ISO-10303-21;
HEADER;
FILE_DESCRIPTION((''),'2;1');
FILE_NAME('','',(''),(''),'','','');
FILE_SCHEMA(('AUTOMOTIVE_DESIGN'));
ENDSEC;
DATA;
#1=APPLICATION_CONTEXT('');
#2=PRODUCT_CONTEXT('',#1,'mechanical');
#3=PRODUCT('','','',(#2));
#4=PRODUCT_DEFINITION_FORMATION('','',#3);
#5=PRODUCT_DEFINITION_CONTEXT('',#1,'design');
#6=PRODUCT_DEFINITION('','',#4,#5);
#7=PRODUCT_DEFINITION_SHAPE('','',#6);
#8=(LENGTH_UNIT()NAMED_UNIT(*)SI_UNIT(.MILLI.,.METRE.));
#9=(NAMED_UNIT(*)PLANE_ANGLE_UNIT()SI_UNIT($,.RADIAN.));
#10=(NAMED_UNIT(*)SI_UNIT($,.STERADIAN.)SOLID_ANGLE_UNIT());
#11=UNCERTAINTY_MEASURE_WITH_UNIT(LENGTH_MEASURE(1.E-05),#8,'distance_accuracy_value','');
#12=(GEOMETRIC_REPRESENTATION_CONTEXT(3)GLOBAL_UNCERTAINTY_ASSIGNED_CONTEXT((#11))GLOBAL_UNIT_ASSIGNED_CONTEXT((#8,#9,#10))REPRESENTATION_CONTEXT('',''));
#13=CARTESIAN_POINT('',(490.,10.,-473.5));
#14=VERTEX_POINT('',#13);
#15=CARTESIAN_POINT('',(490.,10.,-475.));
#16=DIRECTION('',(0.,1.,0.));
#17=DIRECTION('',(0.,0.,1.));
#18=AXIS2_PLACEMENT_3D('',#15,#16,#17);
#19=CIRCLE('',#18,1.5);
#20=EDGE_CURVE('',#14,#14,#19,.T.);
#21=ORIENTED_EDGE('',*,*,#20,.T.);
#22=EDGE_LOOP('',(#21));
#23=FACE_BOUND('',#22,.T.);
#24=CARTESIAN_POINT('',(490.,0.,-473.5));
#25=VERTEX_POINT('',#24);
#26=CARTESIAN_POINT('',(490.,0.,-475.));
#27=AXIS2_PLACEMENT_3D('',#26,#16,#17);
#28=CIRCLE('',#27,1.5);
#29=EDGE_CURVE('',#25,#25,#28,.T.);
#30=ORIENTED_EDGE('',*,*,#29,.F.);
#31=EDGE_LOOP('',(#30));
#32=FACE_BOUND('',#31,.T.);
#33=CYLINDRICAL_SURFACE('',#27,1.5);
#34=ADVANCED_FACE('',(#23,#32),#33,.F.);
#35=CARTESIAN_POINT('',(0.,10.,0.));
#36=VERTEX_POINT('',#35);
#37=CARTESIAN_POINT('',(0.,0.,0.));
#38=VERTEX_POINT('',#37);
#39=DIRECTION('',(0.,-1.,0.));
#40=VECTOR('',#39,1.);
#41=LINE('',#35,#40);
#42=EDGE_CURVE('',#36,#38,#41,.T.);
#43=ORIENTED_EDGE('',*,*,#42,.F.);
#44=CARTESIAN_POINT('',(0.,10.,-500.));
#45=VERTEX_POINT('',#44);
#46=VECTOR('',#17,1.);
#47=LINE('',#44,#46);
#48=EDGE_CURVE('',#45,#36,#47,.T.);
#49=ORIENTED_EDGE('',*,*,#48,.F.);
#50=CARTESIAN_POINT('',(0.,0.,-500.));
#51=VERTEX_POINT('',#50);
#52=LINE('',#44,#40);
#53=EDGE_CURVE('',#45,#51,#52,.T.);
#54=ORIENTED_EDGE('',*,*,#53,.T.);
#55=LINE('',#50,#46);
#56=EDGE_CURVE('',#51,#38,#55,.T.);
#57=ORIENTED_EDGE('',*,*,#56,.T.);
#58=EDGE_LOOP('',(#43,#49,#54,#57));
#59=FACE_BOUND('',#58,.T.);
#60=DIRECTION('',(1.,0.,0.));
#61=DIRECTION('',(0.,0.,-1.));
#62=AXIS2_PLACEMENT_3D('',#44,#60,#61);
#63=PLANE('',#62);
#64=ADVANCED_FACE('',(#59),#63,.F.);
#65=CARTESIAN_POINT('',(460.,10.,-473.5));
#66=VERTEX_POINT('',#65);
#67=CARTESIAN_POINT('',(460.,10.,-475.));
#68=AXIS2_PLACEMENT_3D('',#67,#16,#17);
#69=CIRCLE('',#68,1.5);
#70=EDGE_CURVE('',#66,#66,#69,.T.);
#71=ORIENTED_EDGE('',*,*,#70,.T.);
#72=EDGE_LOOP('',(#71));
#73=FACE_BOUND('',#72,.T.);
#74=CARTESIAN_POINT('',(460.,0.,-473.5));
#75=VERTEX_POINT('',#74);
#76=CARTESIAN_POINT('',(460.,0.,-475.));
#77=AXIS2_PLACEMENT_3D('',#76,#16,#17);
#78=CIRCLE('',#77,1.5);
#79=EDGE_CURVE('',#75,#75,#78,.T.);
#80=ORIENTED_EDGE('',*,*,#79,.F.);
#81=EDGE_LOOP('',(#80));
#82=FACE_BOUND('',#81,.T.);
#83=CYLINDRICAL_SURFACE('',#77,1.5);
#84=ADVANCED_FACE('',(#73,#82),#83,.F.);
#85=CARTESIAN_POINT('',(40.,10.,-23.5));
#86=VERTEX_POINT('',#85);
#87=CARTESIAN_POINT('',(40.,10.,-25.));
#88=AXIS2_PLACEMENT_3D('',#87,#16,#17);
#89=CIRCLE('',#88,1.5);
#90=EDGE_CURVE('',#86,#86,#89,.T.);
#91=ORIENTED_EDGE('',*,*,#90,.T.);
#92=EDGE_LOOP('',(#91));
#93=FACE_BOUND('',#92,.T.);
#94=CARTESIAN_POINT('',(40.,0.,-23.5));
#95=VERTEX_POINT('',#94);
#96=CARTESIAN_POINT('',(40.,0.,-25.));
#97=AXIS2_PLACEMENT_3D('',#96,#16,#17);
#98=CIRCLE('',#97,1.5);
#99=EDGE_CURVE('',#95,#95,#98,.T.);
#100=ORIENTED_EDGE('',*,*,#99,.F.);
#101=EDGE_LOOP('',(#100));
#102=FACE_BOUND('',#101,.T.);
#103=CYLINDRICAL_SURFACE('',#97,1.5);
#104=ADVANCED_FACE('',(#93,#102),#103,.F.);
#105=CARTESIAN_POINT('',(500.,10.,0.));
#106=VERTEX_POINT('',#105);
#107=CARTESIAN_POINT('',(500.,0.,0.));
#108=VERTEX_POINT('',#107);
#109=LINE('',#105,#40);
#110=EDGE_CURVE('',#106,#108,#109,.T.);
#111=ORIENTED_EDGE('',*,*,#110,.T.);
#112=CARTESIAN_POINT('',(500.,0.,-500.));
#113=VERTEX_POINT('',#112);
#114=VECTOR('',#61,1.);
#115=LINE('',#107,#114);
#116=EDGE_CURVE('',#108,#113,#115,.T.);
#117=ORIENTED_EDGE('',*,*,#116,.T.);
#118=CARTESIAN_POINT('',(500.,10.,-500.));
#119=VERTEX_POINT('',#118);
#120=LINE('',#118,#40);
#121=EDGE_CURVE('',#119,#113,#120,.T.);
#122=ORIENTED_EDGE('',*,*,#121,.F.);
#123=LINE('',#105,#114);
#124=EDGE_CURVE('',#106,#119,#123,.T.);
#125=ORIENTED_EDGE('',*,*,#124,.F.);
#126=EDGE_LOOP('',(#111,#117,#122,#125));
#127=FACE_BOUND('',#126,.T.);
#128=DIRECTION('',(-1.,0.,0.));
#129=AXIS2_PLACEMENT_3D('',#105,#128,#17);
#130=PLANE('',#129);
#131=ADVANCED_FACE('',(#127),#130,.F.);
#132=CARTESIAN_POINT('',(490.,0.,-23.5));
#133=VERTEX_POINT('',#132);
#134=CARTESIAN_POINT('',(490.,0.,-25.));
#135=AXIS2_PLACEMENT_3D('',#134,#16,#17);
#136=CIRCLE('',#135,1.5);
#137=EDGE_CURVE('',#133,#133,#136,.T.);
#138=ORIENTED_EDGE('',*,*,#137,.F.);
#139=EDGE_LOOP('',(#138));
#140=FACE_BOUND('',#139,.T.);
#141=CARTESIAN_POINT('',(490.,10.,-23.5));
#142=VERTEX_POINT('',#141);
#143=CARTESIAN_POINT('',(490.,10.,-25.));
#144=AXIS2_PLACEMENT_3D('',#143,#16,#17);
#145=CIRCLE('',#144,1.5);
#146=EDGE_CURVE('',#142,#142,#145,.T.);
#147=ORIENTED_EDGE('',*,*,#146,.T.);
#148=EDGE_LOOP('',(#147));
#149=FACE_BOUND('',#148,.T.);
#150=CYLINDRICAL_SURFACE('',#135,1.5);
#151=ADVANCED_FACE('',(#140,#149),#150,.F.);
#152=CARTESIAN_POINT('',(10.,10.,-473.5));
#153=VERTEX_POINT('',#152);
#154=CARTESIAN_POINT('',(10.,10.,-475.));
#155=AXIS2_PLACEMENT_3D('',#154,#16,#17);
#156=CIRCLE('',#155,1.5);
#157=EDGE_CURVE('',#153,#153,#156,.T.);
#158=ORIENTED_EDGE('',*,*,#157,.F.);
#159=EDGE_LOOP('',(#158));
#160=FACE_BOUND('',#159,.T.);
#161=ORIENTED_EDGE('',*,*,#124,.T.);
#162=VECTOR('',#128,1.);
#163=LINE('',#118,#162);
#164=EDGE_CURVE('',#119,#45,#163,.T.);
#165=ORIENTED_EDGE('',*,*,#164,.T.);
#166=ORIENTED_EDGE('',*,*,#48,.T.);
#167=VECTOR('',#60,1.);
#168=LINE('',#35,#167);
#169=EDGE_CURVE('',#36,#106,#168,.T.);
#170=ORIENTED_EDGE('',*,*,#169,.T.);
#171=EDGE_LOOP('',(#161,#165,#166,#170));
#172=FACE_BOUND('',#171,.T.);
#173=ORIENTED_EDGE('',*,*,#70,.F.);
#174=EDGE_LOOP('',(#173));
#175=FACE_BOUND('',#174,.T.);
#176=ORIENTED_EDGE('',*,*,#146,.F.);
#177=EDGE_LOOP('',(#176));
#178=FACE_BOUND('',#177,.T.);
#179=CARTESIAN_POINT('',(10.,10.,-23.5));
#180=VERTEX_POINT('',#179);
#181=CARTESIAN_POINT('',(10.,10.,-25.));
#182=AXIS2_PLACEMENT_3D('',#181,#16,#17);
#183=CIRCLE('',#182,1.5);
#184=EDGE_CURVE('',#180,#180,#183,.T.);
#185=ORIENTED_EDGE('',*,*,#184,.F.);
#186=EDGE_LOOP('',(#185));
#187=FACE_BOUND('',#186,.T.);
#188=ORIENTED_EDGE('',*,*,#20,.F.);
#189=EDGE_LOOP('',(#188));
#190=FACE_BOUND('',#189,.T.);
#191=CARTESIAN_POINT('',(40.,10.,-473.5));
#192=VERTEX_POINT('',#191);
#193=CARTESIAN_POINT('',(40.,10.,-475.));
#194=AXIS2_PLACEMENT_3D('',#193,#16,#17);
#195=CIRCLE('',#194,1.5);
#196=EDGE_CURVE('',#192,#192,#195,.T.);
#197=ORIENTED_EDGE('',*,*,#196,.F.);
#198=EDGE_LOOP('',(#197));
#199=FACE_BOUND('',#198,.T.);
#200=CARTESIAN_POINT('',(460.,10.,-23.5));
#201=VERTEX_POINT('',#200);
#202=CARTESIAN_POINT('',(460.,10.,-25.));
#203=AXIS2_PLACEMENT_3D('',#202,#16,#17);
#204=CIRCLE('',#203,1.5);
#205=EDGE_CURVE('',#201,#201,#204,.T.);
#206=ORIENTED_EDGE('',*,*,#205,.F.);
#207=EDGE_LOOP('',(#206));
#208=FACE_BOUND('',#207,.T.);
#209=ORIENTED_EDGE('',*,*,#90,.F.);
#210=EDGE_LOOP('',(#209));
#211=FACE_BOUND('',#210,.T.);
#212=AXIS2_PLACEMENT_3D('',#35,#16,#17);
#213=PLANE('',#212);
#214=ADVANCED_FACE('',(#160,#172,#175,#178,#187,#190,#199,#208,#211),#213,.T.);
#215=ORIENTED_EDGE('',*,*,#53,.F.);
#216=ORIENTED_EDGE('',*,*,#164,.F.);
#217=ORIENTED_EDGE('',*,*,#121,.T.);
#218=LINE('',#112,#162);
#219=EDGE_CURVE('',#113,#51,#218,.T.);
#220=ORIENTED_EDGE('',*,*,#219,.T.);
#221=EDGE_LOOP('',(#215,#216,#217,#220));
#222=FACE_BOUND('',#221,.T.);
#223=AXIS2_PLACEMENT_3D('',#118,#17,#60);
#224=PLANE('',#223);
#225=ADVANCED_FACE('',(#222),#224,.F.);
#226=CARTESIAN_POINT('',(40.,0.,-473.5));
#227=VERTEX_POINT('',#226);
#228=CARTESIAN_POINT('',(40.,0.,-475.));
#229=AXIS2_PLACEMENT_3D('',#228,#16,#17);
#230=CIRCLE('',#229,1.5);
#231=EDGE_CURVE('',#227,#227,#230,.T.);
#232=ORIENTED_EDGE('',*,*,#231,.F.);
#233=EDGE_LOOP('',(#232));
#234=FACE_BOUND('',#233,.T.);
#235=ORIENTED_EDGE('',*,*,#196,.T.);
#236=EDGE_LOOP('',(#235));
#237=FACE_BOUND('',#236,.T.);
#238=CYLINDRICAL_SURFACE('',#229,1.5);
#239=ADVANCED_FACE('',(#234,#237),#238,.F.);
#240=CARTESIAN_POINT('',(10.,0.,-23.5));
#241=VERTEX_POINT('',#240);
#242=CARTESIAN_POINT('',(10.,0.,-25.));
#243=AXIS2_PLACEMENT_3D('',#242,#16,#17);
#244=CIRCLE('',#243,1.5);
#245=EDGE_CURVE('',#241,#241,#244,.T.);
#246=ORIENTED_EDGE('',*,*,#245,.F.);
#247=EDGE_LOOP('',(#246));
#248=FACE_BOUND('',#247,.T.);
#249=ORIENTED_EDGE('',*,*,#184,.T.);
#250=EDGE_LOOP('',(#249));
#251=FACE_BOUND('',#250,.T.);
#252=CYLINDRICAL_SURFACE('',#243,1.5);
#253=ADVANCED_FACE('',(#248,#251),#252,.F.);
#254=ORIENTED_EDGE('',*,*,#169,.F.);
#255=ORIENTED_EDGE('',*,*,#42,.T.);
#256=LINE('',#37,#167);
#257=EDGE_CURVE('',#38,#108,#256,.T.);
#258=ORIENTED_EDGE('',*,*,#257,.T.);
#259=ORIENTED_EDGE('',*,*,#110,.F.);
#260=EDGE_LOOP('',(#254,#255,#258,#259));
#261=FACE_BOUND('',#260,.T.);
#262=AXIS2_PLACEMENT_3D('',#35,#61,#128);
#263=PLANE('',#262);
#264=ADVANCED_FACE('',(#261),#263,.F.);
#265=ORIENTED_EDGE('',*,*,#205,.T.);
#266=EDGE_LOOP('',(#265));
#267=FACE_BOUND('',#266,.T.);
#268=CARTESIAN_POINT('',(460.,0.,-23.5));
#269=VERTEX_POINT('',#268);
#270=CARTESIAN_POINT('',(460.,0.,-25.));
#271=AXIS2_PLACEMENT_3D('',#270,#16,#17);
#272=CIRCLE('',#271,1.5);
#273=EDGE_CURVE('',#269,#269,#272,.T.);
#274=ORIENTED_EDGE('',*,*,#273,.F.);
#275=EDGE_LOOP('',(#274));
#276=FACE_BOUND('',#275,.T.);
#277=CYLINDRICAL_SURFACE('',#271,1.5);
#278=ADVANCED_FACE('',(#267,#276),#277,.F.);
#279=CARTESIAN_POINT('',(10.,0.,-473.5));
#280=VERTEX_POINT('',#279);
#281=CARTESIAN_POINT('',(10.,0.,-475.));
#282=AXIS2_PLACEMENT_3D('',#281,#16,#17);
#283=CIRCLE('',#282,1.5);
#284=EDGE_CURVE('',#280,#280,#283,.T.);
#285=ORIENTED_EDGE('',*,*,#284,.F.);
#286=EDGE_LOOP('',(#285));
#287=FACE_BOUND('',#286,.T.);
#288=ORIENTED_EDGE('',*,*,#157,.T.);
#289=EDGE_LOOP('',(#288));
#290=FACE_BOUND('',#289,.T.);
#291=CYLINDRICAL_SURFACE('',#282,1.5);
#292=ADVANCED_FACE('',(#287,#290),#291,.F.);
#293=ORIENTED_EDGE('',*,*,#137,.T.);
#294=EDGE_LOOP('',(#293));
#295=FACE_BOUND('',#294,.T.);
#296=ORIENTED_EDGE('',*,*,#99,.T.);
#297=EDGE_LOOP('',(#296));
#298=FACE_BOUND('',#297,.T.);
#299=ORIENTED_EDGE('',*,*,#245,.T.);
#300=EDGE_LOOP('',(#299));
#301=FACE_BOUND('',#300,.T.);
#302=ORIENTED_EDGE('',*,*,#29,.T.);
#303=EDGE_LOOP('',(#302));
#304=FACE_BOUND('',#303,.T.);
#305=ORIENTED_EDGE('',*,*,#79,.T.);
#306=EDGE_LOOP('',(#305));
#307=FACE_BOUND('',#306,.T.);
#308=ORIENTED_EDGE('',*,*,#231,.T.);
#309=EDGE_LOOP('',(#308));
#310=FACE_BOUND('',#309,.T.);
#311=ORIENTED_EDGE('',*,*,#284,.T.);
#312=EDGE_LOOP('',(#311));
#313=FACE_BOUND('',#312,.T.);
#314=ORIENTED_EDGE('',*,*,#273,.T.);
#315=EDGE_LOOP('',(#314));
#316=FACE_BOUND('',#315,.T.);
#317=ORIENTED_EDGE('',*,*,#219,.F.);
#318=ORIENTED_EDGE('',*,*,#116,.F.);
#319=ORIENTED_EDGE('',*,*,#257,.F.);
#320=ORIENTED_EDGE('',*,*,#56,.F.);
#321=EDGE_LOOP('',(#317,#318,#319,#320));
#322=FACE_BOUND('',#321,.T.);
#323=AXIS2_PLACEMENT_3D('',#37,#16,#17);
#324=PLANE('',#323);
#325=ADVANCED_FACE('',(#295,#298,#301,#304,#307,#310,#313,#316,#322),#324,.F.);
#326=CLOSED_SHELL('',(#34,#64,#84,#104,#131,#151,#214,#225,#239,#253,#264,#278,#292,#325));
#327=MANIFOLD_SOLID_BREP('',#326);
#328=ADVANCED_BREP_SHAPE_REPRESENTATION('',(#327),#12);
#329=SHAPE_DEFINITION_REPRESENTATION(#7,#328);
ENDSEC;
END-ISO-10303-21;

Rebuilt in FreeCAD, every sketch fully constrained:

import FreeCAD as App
import Part
import Sketcher

V = App.Vector

doc = App.newDocument("Part")
body = doc.addObject("PartDesign::Body", "Body")

sketch1 = doc.addObject("Sketcher::SketchObject", "Sketch")
body.addObject(sketch1)
sketch1.AttachmentSupport = (doc.XZ_Plane, [""])
sketch1.MapMode = "FlatFace"
sketch1.addGeometry([
    Part.LineSegment(V(0, -500, 0), V(0, 0, 0)),
    Part.LineSegment(V(0, 0, 0), V(500, 0, 0)),
    Part.LineSegment(V(500, 0, 0), V(500, -500, 0)),
    Part.LineSegment(V(500, -500, 0), V(0, -500, 0)),
], False)
sketch1.addConstraint([
    Sketcher.Constraint("Coincident", 0, 2, 1, 1),
    Sketcher.Constraint("Coincident", 1, 2, 2, 1),
    Sketcher.Constraint("Coincident", 2, 2, 3, 1),
    Sketcher.Constraint("Coincident", 3, 2, 0, 1),
    Sketcher.Constraint("Vertical", 0),
    Sketcher.Constraint("Horizontal", 1),
    Sketcher.Constraint("Vertical", 2),
    Sketcher.Constraint("Horizontal", 3),
    Sketcher.Constraint("Coincident", 0, 2, -1, 1),
    Sketcher.Constraint("Equal", 3, 0),
    Sketcher.Constraint("DistanceX", 1, 1, 1, 2, 500.0),
])
pad1 = doc.addObject("PartDesign::Pad", "Pad")
body.addObject(pad1)
pad1.Profile = sketch1
pad1.Length = 10
pad1.Reversed = True

sketch2 = doc.addObject("Sketcher::SketchObject", "Sketch001")
body.addObject(sketch2)
sketch2.AttachmentSupport = (doc.XZ_Plane, [""])
sketch2.MapMode = "FlatFace"
sketch2.AttachmentOffset = App.Placement(V(0, 0, -10), App.Rotation())
sketch2.addGeometry([
    Part.Circle(V(10, -25, 0), V(0, 0, 1), 1.5),
    Part.Circle(V(10, -475, 0), V(0, 0, 1), 1.5),
    Part.Circle(V(40, -475, 0), V(0, 0, 1), 1.5),
    Part.Circle(V(40, -25, 0), V(0, 0, 1), 1.5),
    Part.Circle(V(460, -475, 0), V(0, 0, 1), 1.5),
    Part.Circle(V(490, -475, 0), V(0, 0, 1), 1.5),
    Part.Circle(V(460, -25, 0), V(0, 0, 1), 1.5),
    Part.Circle(V(490, -25, 0), V(0, 0, 1), 1.5),
], False)
sketch2.addConstraint([
    Sketcher.Constraint("Equal", 0, 1),
    Sketcher.Constraint("Equal", 1, 2),
    Sketcher.Constraint("Equal", 2, 3),
    Sketcher.Constraint("Equal", 3, 4),
    Sketcher.Constraint("Equal", 4, 5),
    Sketcher.Constraint("Equal", 5, 6),
    Sketcher.Constraint("Equal", 6, 7),
    Sketcher.Constraint("Horizontal", 1, 3, 2, 3),
    Sketcher.Constraint("Horizontal", 0, 3, 3, 3),
    Sketcher.Constraint("Horizontal", 2, 3, 4, 3),
    Sketcher.Constraint("Horizontal", 4, 3, 5, 3),
    Sketcher.Constraint("Horizontal", 3, 3, 6, 3),
    Sketcher.Constraint("Horizontal", 6, 3, 7, 3),
    Sketcher.Constraint("Vertical", 0, 3, 1, 3),
    Sketcher.Constraint("Vertical", 2, 3, 3, 3),
    Sketcher.Constraint("Vertical", 4, 3, 6, 3),
    Sketcher.Constraint("Vertical", 5, 3, 7, 3),
    Sketcher.Constraint("Diameter", 0, 3.0),
    Sketcher.Constraint("DistanceX", -1, 1, 0, 3, 10.0),
    Sketcher.Constraint("DistanceY", 0, 3, -1, 1, 25.0),
    Sketcher.Constraint("DistanceY", 1, 3, -1, 1, 475.0),
    Sketcher.Constraint("DistanceX", -1, 1, 2, 3, 40.0),
    Sketcher.Constraint("DistanceX", -1, 1, 4, 3, 460.0),
    Sketcher.Constraint("DistanceX", -1, 1, 5, 3, 490.0),
])
pocket1 = doc.addObject("PartDesign::Pocket", "Pocket")
body.addObject(pocket1)
pocket1.Profile = sketch2
pocket1.Length = 10
pocket1.Reversed = True

doc.recompute()
